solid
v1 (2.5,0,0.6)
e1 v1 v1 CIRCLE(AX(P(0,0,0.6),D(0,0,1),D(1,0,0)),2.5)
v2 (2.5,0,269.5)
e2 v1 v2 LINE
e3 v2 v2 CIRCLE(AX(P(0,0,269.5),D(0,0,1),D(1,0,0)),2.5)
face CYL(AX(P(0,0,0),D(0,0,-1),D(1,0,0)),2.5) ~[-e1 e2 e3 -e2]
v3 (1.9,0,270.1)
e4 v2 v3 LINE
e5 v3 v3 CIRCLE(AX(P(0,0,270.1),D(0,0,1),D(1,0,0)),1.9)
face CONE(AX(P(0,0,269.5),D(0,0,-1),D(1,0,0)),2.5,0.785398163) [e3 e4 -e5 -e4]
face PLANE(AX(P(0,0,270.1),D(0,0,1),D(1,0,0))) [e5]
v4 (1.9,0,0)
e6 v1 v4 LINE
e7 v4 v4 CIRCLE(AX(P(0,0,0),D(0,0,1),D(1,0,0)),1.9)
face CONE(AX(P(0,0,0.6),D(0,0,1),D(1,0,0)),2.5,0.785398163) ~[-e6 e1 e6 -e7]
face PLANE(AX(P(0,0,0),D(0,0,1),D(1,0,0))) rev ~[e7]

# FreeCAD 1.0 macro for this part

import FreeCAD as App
import Part
import Sketcher

V = App.Vector
Q = App.Units.Quantity


def edges_at(feature, points):
    """Names of the edges that pass closest to the given points."""
    edges = feature.Shape.Edges
    near = lambda p: min(range(len(edges)), key=lambda i: edges[i].distToShape(Part.Vertex(*p))[0])
    return sorted({f"Edge{near(p) + 1}" for p in points})

doc = App.newDocument("Part")
body = doc.addObject("PartDesign::Body", "Body")

# Sketch on XY plane
sketch1 = doc.addObject("Sketcher::SketchObject", "Sketch")
body.addObject(sketch1)
sketch1.AttachmentSupport = (doc.XY_Plane, [""])
sketch1.MapMode = "FlatFace"
sketch1.addGeometry(Part.Circle(V(0, 0, 0), V(0, 0, 1), 2.5), False)
sketch1.addConstraint([
    Sketcher.Constraint("Coincident", 0, 3, -1, 1),
    Sketcher.Constraint("Diameter", 0, Q("5 mm")),
])
pad1 = doc.addObject("PartDesign::Pad", "Pad")
body.addObject(pad1)
pad1.Profile = sketch1
pad1.Length = 270.1
doc.recompute()

chamfer = doc.addObject("PartDesign::Chamfer", "Chamfer")
body.addObject(chamfer)
chamfer.Base = (pad1, edges_at(pad1, [(-2.5, 0, 270.1), (-2.5, 0, 0)]))
chamfer.Size = 0.6

doc.recompute()
